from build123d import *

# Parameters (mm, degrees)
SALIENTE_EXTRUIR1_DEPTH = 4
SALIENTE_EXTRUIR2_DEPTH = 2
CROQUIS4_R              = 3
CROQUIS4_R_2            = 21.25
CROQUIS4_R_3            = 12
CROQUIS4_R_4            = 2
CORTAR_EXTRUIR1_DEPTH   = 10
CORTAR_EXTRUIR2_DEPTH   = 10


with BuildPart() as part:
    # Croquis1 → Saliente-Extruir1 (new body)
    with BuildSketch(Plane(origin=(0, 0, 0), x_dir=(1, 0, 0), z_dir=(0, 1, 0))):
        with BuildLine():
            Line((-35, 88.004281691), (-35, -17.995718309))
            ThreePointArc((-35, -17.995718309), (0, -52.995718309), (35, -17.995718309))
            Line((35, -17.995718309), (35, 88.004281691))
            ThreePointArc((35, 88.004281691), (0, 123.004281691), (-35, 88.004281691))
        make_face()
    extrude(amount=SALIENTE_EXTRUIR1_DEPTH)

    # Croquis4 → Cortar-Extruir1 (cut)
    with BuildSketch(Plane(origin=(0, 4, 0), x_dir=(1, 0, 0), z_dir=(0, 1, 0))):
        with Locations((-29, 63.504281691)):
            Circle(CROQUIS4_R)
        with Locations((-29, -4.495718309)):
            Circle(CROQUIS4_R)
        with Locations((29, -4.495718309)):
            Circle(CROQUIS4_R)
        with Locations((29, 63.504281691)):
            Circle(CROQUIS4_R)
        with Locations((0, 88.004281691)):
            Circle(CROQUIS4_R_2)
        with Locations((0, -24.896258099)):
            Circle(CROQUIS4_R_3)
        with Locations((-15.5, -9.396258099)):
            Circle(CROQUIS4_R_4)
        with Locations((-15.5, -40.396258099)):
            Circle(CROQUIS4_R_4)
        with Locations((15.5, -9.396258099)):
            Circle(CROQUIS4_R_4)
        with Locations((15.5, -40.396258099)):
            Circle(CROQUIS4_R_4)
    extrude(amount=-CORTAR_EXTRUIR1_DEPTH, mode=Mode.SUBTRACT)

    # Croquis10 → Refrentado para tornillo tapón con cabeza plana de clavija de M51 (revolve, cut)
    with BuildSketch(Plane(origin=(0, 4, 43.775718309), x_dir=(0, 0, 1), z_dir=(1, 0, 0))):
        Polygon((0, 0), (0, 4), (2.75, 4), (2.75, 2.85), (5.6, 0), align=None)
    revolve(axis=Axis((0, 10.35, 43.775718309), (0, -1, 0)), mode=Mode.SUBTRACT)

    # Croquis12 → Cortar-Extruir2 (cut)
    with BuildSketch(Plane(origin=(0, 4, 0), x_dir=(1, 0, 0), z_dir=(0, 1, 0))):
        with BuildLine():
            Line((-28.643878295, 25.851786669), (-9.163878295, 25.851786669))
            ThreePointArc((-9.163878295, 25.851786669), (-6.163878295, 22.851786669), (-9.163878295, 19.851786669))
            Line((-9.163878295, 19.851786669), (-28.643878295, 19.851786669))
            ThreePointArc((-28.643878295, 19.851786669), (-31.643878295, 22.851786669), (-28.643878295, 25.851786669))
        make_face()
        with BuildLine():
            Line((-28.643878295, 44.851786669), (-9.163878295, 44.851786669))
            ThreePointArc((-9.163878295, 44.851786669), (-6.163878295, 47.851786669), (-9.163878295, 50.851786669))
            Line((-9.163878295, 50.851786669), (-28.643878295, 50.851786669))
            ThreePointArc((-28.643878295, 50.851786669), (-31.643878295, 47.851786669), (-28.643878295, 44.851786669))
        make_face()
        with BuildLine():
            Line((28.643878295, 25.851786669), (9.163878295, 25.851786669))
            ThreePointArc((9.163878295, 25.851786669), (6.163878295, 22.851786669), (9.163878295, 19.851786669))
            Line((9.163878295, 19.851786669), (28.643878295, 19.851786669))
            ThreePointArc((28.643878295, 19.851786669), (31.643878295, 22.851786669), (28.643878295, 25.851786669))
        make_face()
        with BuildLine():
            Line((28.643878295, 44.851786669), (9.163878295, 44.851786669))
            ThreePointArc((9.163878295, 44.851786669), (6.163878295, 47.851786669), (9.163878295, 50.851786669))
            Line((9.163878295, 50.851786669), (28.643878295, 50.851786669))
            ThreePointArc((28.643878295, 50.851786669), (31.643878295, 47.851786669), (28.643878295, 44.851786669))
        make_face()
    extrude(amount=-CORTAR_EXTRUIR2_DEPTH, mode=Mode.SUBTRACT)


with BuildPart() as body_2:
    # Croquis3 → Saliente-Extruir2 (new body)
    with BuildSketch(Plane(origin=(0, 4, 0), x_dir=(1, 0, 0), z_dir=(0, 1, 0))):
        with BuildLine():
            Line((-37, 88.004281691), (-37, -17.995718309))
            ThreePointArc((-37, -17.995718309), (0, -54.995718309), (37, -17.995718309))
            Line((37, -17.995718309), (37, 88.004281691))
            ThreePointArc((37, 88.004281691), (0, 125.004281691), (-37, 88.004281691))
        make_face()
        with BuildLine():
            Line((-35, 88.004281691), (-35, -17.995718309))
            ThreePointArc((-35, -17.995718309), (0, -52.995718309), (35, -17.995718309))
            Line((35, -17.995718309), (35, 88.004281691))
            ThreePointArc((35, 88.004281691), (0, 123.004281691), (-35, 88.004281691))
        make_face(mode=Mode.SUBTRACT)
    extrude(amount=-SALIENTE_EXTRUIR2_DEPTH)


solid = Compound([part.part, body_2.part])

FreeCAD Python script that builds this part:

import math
import FreeCAD as App
import Part
import Sketcher
Q = App.Units.Quantity


def add_polygon(sketch, points):
    """Adds a closed chain of lines whose ends are joined by coincident constraints."""
    first, n = sketch.GeometryCount, len(points)
    for a, b in zip(points, points[1:] + points[:1]):
        sketch.addGeometry(Part.LineSegment(App.Vector(*a, 0), App.Vector(*b, 0)), False)
    for i in range(n):
        sketch.addConstraint(Sketcher.Constraint("Coincident", first + i, 2, first + (i + 1) % n, 1))

doc = App.newDocument("Part")
body = doc.addObject("PartDesign::Body", "Body")

sketch1 = body.newObject("Sketcher::SketchObject", "Sketch")
sketch1.AttachmentSupport = (doc.getObject("XZ_Plane"), [""])
sketch1.MapMode = "FlatFace"
sketch1.addGeometry(Part.LineSegment(App.Vector(-35, -88, 0), App.Vector(-35, 18, 0)), False)
sketch1.addGeometry(Part.ArcOfCircle(Part.Circle(App.Vector(0, 18, 0), App.Vector(0, 0, 1), 35), math.radians(0), math.radians(180)), False)
sketch1.addGeometry(Part.LineSegment(App.Vector(35, 18, 0), App.Vector(35, -88, 0)), False)
sketch1.addGeometry(Part.ArcOfCircle(Part.Circle(App.Vector(0, -88, 0), App.Vector(0, 0, 1), 35), math.radians(180), math.radians(360)), False)
sketch1.addConstraint(Sketcher.Constraint("Tangent", 0, 2, 1, 2))
sketch1.addConstraint(Sketcher.Constraint("Tangent", 1, 1, 2, 1))
sketch1.addConstraint(Sketcher.Constraint("Tangent", 2, 2, 3, 2))
sketch1.addConstraint(Sketcher.Constraint("Tangent", 3, 1, 0, 1))
sketch1.addConstraint(Sketcher.Constraint("Vertical", 0))
sketch1.addConstraint(Sketcher.Constraint("Vertical", 2))
sketch1.addConstraint(Sketcher.Constraint("PointOnObject", 1, 3, -2))
sketch1.addConstraint(Sketcher.Constraint("Radius", 1, Q("35 mm")))
sketch1.addConstraint(Sketcher.Constraint("DistanceY", 0, 1, 0, 2, Q("106 mm")))
sketch1.addConstraint(Sketcher.Constraint("DistanceY", -1, 1, 1, 3, Q("17.995718 mm")))
pad1 = body.newObject("PartDesign::Pad", "Pad")
pad1.Profile = sketch1
pad1.Length = 4
pad1.Reversed = True

sketch2 = body.newObject("Sketcher::SketchObject", "Sketch001")
sketch2.AttachmentSupport = (doc.getObject("XZ_Plane"), [""])
sketch2.MapMode = "FlatFace"
sketch2.AttachmentOffset = App.Placement(App.Vector(0, 0, -4), App.Rotation())
sketch2.addGeometry(Part.Circle(App.Vector(-29, -63.5, 0), App.Vector(0, 0, 1), 3), False)
sketch2.addGeometry(Part.Circle(App.Vector(-29, 4.5, 0), App.Vector(0, 0, 1), 3), False)
sketch2.addGeometry(Part.Circle(App.Vector(29, 4.5, 0), App.Vector(0, 0, 1), 3), False)
sketch2.addGeometry(Part.Circle(App.Vector(29, -63.5, 0), App.Vector(0, 0, 1), 3), False)
sketch2.addGeometry(Part.Circle(App.Vector(0, -88, 0), App.Vector(0, 0, 1), 21.2), False)
sketch2.addGeometry(Part.Circle(App.Vector(0, 24.9, 0), App.Vector(0, 0, 1), 12), False)
sketch2.addGeometry(Part.Circle(App.Vector(-15.5, 9.4, 0), App.Vector(0, 0, 1), 2), False)
sketch2.addGeometry(Part.Circle(App.Vector(-15.5, 40.4, 0), App.Vector(0, 0, 1), 2), False)
sketch2.addGeometry(Part.Circle(App.Vector(15.5, 9.4, 0), App.Vector(0, 0, 1), 2), False)
sketch2.addGeometry(Part.Circle(App.Vector(15.5, 40.4, 0), App.Vector(0, 0, 1), 2), False)
sketch2.addConstraint(Sketcher.Constraint("Equal", 0, 1))
sketch2.addConstraint(Sketcher.Constraint("Equal", 1, 2))
sketch2.addConstraint(Sketcher.Constraint("Equal", 2, 3))
sketch2.addConstraint(Sketcher.Constraint("Equal", 6, 7))
sketch2.addConstraint(Sketcher.Constraint("Equal", 7, 8))
sketch2.addConstraint(Sketcher.Constraint("Equal", 8, 9))
sketch2.addConstraint(Sketcher.Constraint("Symmetric", 1, 3, 2, 3, -2))
sketch2.addConstraint(Sketcher.Constraint("Symmetric", 0, 3, 3, 3, -2))
sketch2.addConstraint(Sketcher.Constraint("Symmetric", 6, 3, 8, 3, -2))
sketch2.addConstraint(Sketcher.Constraint("Symmetric", 7, 3, 9, 3, -2))
sketch2.addConstraint(Sketcher.Constraint("PointOnObject", 4, 3, -2))
sketch2.addConstraint(Sketcher.Constraint("PointOnObject", 5, 3, -2))
sketch2.addConstraint(Sketcher.Constraint("Vertical", 0, 3, 1, 3))
sketch2.addConstraint(Sketcher.Constraint("Vertical", 6, 3, 7, 3))
sketch2.addConstraint(Sketcher.Constraint("Diameter", 0, Q("6 mm")))
sketch2.addConstraint(Sketcher.Constraint("Diameter", 5, Q("24 mm")))
sketch2.addConstraint(Sketcher.Constraint("Diameter", 6, Q("4 mm")))
sketch2.addConstraint(Sketcher.Constraint("Diameter", 4, Q("42.5 mm")))
sketch2.addConstraint(Sketcher.Constraint("DistanceX", 0, 3, -1, 1, Q("29 mm")))
sketch2.addConstraint(Sketcher.Constraint("DistanceY", 0, 3, 1, 3, Q("68 mm")))
sketch2.addConstraint(Sketcher.Constraint("DistanceY", 6, 3, 7, 3, Q("31 mm")))
sketch2.addConstraint(Sketcher.Constraint("DistanceX", 6, 3, 8, 3, Q("31 mm")))
sketch2.addConstraint(Sketcher.Constraint("DistanceY", 4, 3, 0, 3, Q("24.5 mm")))
sketch2.addConstraint(Sketcher.Constraint("DistanceY", 6, 3, 5, 3, Q("15.5 mm")))
sketch2.addConstraint(Sketcher.Constraint("DistanceY", 0, 3, -1, 1, Q("63.504282 mm")))
sketch2.addConstraint(Sketcher.Constraint("DistanceY", -1, 1, 5, 3, Q("24.896258 mm")))
pocket1 = body.newObject("PartDesign::Pocket", "Pocket")
pocket1.Profile = sketch2
pocket1.Length = 10
pocket1.Reversed = True

sketch3 = body.newObject("Sketcher::SketchObject", "Sketch002")
sketch3.AttachmentSupport = (doc.getObject("YZ_Plane"), [""])
sketch3.MapMode = "FlatFace"
add_polygon(sketch3, [(0, 43.8), (4, 43.8), (4, 49.4), (1.1, 46.5), (0, 46.5)])
sketch3.addGeometry(Part.LineSegment(App.Vector(4, 43.8, 0), App.Vector(0, 43.8, 0)), True)
sketch3.addConstraint(Sketcher.Constraint("Horizontal", 0))
sketch3.addConstraint(Sketcher.Constraint("Vertical", 1))
sketch3.addConstraint(Sketcher.Constraint("Horizontal", 3))
sketch3.addConstraint(Sketcher.Constraint("Vertical", 4))
sketch3.addConstraint(Sketcher.Constraint("Horizontal", 5))
sketch3.addConstraint(Sketcher.Constraint("Coincident", 5, 1, 0, 2))
sketch3.addConstraint(Sketcher.Constraint("PointOnObject", 3, 2, -2))
sketch3.addConstraint(Sketcher.Constraint("PointOnObject", 5, 2, -2))
sketch3.addConstraint(Sketcher.Constraint("DistanceX", 0, 1, 0, 2, Q("4 mm")))
sketch3.addConstraint(Sketcher.Constraint("Angle", 2, Q("-135 deg")))
sketch3.addConstraint(Sketcher.Constraint("DistanceY", 1, 1, 1, 2, Q("5.6 mm")))
sketch3.addConstraint(Sketcher.Constraint("DistanceX", 3, 2, 3, 1, Q("1.15 mm")))
sketch3.addConstraint(Sketcher.Constraint("DistanceY", -1, 1, 0, 2, Q("43.775718 mm")))
groove = body.newObject("PartDesign::Groove", "Groove")
groove.Profile = sketch3
groove.ReferenceAxis = (sketch3, ["Axis0"])
groove.Angle = 360

sketch4 = body.newObject("Sketcher::SketchObject", "Sketch003")
sketch4.AttachmentSupport = (doc.getObject("XZ_Plane"), [""])
sketch4.MapMode = "FlatFace"
sketch4.AttachmentOffset = App.Placement(App.Vector(0, 0, -4), App.Rotation())
sketch4.addGeometry(Part.LineSegment(App.Vector(-9.2, -25.9, 0), App.Vector(-28.6, -25.9, 0)), False)
sketch4.addGeometry(Part.ArcOfCircle(Part.Circle(App.Vector(-28.6, -22.9, 0), App.Vector(0, 0, 1), 3), math.radians(90), math.radians(270)), False)
sketch4.addGeometry(Part.LineSegment(App.Vector(-28.6, -19.9, 0), App.Vector(-9.2, -19.9, 0)), False)
sketch4.addGeometry(Part.ArcOfCircle(Part.Circle(App.Vector(-9.2, -22.9, 0), App.Vector(0, 0, 1), 3), math.radians(-90), math.radians(90)), False)
sketch4.addGeometry(Part.LineSegment(App.Vector(-28.6, -44.9, 0), App.Vector(-9.2, -44.9, 0)), False)
sketch4.addGeometry(Part.ArcOfCircle(Part.Circle(App.Vector(-9.2, -47.9, 0), App.Vector(0, 0, 1), 3), math.radians(-90), math.radians(90)), False)
sketch4.addGeometry(Part.LineSegment(App.Vector(-9.2, -50.9, 0), App.Vector(-28.6, -50.9, 0)), False)
sketch4.addGeometry(Part.ArcOfCircle(Part.Circle(App.Vector(-28.6, -47.9, 0), App.Vector(0, 0, 1), 3), math.radians(90), math.radians(270)), False)
sketch4.addGeometry(Part.LineSegment(App.Vector(28.6, -25.9, 0), App.Vector(9.2, -25.9, 0)), False)
sketch4.addGeometry(Part.ArcOfCircle(Part.Circle(App.Vector(9.2, -22.9, 0), App.Vector(0, 0, 1), 3), math.radians(90), math.radians(270)), False)
sketch4.addGeometry(Part.LineSegment(App.Vector(9.2, -19.9, 0), App.Vector(28.6, -19.9, 0)), False)
sketch4.addGeometry(Part.ArcOfCircle(Part.Circle(App.Vector(28.6, -22.9, 0), App.Vector(0, 0, 1), 3), math.radians(-90), math.radians(90)), False)
sketch4.addGeometry(Part.LineSegment(App.Vector(9.2, -44.9, 0), App.Vector(28.6, -44.9, 0)), False)
sketch4.addGeometry(Part.ArcOfCircle(Part.Circle(App.Vector(28.6, -47.9, 0), App.Vector(0, 0, 1), 3), math.radians(-90), math.radians(90)), False)
sketch4.addGeometry(Part.LineSegment(App.Vector(28.6, -50.9, 0), App.Vector(9.2, -50.9, 0)), False)
sketch4.addGeometry(Part.ArcOfCircle(Part.Circle(App.Vector(9.2, -47.9, 0), App.Vector(0, 0, 1), 3), math.radians(90), math.radians(270)), False)
sketch4.addConstraint(Sketcher.Constraint("Tangent", 0, 2, 1, 2))
sketch4.addConstraint(Sketcher.Constraint("Tangent", 1, 1, 2, 1))
sketch4.addConstraint(Sketcher.Constraint("Tangent", 2, 2, 3, 2))
sketch4.addConstraint(Sketcher.Constraint("Tangent", 3, 1, 0, 1))
sketch4.addConstraint(Sketcher.Constraint("Tangent", 4, 2, 5, 2))
sketch4.addConstraint(Sketcher.Constraint("Tangent", 5, 1, 6, 1))
sketch4.addConstraint(Sketcher.Constraint("Tangent", 6, 2, 7, 2))
sketch4.addConstraint(Sketcher.Constraint("Tangent", 7, 1, 4, 1))
sketch4.addConstraint(Sketcher.Constraint("Tangent", 8, 2, 9, 2))
sketch4.addConstraint(Sketcher.Constraint("Tangent", 9, 1, 10, 1))
sketch4.addConstraint(Sketcher.Constraint("Tangent", 10, 2, 11, 2))
sketch4.addConstraint(Sketcher.Constraint("Tangent", 11, 1, 8, 1))
sketch4.addConstraint(Sketcher.Constraint("Tangent", 12, 2, 13, 2))
sketch4.addConstraint(Sketcher.Constraint("Tangent", 13, 1, 14, 1))
sketch4.addConstraint(Sketcher.Constraint("Tangent", 14, 2, 15, 2))
sketch4.addConstraint(Sketcher.Constraint("Tangent", 15, 1, 12, 1))
sketch4.addConstraint(Sketcher.Constraint("Horizontal", 0))
sketch4.addConstraint(Sketcher.Constraint("Horizontal", 2))
sketch4.addConstraint(Sketcher.Constraint("Horizontal", 4))
sketch4.addConstraint(Sketcher.Constraint("Horizontal", 6))
sketch4.addConstraint(Sketcher.Constraint("Horizontal", 8))
sketch4.addConstraint(Sketcher.Constraint("Horizontal", 10))
sketch4.addConstraint(Sketcher.Constraint("Horizontal", 12))
sketch4.addConstraint(Sketcher.Constraint("Horizontal", 14))
sketch4.addConstraint(Sketcher.Constraint("Equal", 3, 5))
sketch4.addConstraint(Sketcher.Constraint("Equal", 7, 9))
sketch4.addConstraint(Sketcher.Constraint("Equal", 11, 13))
sketch4.addConstraint(Sketcher.Constraint("Symmetric", 3, 3, 9, 3, -2))
sketch4.addConstraint(Sketcher.Constraint("Symmetric", 7, 3, 13, 3, -2))
sketch4.addConstraint(Sketcher.Constraint("Vertical", 3, 3, 5, 3))
sketch4.addConstraint(Sketcher.Constraint("Vertical", 1, 3, 7, 3))
sketch4.addConstraint(Sketcher.Constraint("Vertical", 11, 3, 13, 3))
sketch4.addConstraint(Sketcher.Constraint("Vertical", 9, 3, 15, 3))
sketch4.addConstraint(Sketcher.Constraint("Radius", 1, Q("3 mm")))
sketch4.addConstraint(Sketcher.Constraint("DistanceY", 5, 3, 3, 3, Q("25 mm")))
sketch4.addConstraint(Sketcher.Constraint("DistanceX", 0, 2, 0, 1, Q("19.48 mm")))
sketch4.addConstraint(Sketcher.Constraint("DistanceX", 1, 3, -1, 1, Q("28.643878 mm")))
sketch4.addConstraint(Sketcher.Constraint("DistanceY", 1, 3, -1, 1, Q("22.851787 mm")))
pocket2 = body.newObject("PartDesign::Pocket", "Pocket001")
pocket2.Profile = sketch4
pocket2.Length = 10
pocket2.Reversed = True
body2 = doc.addObject("PartDesign::Body", "Body001")

sketch5 = body2.newObject("Sketcher::SketchObject", "Sketch004")
sketch5.AttachmentSupport = (doc.getObject("XZ_Plane001"), [""])
sketch5.MapMode = "FlatFace"
sketch5.AttachmentOffset = App.Placement(App.Vector(0, 0, -4), App.Rotation())
sketch5.addGeometry(Part.LineSegment(App.Vector(-37, -88, 0), App.Vector(-37, 18, 0)), False)
sketch5.addGeometry(Part.ArcOfCircle(Part.Circle(App.Vector(0, 18, 0), App.Vector(0, 0, 1), 37), math.radians(0), math.radians(180)), False)
sketch5.addGeometry(Part.LineSegment(App.Vector(37, 18, 0), App.Vector(37, -88, 0)), False)
sketch5.addGeometry(Part.ArcOfCircle(Part.Circle(App.Vector(0, -88, 0), App.Vector(0, 0, 1), 37), math.radians(180), math.radians(360)), False)
sketch5.addGeometry(Part.LineSegment(App.Vector(-35, 18, 0), App.Vector(-35, -88, 0)), False)
sketch5.addGeometry(Part.ArcOfCircle(Part.Circle(App.Vector(0, -88, 0), App.Vector(0, 0, 1), 35), math.radians(180), math.radians(360)), False)
sketch5.addGeometry(Part.LineSegment(App.Vector(35, -88, 0), App.Vector(35, 18, 0)), False)
sketch5.addGeometry(Part.ArcOfCircle(Part.Circle(App.Vector(0, 18, 0), App.Vector(0, 0, 1), 35), math.radians(0), math.radians(180)), False)
sketch5.addConstraint(Sketcher.Constraint("Tangent", 0, 2, 1, 2))
sketch5.addConstraint(Sketcher.Constraint("Tangent", 1, 1, 2, 1))
sketch5.addConstraint(Sketcher.Constraint("Tangent", 2, 2, 3, 2))
sketch5.addConstraint(Sketcher.Constraint("Tangent", 3, 1, 0, 1))
sketch5.addConstraint(Sketcher.Constraint("Tangent", 4, 2, 5, 1))
sketch5.addConstraint(Sketcher.Constraint("Tangent", 5, 2, 6, 1))
sketch5.addConstraint(Sketcher.Constraint("Tangent", 6, 2, 7, 1))
sketch5.addConstraint(Sketcher.Constraint("Tangent", 7, 2, 4, 1))
sketch5.addConstraint(Sketcher.Constraint("Vertical", 0))
sketch5.addConstraint(Sketcher.Constraint("Vertical", 2))
sketch5.addConstraint(Sketcher.Constraint("Vertical", 4))
sketch5.addConstraint(Sketcher.Constraint("Vertical", 6))
sketch5.addConstraint(Sketcher.Constraint("Coincident", 5, 3, 3, 3))
sketch5.addConstraint(Sketcher.Constraint("PointOnObject", 1, 3, -2))
sketch5.addConstraint(Sketcher.Constraint("Horizontal", 7, 3, 0, 2))
sketch5.addConstraint(Sketcher.Constraint("Radius", 1, Q("37 mm")))
sketch5.addConstraint(Sketcher.Constraint("Radius", 5, Q("35 mm")))
sketch5.addConstraint(Sketcher.Constraint("DistanceY", 0, 1, 0, 2, Q("106 mm")))
sketch5.addConstraint(Sketcher.Constraint("DistanceY", -1, 1, 1, 3, Q("17.995718 mm")))
pad2 = body2.newObject("PartDesign::Pad", "Pad001")
pad2.Profile = sketch5
pad2.Length = 2

doc.recompute()
